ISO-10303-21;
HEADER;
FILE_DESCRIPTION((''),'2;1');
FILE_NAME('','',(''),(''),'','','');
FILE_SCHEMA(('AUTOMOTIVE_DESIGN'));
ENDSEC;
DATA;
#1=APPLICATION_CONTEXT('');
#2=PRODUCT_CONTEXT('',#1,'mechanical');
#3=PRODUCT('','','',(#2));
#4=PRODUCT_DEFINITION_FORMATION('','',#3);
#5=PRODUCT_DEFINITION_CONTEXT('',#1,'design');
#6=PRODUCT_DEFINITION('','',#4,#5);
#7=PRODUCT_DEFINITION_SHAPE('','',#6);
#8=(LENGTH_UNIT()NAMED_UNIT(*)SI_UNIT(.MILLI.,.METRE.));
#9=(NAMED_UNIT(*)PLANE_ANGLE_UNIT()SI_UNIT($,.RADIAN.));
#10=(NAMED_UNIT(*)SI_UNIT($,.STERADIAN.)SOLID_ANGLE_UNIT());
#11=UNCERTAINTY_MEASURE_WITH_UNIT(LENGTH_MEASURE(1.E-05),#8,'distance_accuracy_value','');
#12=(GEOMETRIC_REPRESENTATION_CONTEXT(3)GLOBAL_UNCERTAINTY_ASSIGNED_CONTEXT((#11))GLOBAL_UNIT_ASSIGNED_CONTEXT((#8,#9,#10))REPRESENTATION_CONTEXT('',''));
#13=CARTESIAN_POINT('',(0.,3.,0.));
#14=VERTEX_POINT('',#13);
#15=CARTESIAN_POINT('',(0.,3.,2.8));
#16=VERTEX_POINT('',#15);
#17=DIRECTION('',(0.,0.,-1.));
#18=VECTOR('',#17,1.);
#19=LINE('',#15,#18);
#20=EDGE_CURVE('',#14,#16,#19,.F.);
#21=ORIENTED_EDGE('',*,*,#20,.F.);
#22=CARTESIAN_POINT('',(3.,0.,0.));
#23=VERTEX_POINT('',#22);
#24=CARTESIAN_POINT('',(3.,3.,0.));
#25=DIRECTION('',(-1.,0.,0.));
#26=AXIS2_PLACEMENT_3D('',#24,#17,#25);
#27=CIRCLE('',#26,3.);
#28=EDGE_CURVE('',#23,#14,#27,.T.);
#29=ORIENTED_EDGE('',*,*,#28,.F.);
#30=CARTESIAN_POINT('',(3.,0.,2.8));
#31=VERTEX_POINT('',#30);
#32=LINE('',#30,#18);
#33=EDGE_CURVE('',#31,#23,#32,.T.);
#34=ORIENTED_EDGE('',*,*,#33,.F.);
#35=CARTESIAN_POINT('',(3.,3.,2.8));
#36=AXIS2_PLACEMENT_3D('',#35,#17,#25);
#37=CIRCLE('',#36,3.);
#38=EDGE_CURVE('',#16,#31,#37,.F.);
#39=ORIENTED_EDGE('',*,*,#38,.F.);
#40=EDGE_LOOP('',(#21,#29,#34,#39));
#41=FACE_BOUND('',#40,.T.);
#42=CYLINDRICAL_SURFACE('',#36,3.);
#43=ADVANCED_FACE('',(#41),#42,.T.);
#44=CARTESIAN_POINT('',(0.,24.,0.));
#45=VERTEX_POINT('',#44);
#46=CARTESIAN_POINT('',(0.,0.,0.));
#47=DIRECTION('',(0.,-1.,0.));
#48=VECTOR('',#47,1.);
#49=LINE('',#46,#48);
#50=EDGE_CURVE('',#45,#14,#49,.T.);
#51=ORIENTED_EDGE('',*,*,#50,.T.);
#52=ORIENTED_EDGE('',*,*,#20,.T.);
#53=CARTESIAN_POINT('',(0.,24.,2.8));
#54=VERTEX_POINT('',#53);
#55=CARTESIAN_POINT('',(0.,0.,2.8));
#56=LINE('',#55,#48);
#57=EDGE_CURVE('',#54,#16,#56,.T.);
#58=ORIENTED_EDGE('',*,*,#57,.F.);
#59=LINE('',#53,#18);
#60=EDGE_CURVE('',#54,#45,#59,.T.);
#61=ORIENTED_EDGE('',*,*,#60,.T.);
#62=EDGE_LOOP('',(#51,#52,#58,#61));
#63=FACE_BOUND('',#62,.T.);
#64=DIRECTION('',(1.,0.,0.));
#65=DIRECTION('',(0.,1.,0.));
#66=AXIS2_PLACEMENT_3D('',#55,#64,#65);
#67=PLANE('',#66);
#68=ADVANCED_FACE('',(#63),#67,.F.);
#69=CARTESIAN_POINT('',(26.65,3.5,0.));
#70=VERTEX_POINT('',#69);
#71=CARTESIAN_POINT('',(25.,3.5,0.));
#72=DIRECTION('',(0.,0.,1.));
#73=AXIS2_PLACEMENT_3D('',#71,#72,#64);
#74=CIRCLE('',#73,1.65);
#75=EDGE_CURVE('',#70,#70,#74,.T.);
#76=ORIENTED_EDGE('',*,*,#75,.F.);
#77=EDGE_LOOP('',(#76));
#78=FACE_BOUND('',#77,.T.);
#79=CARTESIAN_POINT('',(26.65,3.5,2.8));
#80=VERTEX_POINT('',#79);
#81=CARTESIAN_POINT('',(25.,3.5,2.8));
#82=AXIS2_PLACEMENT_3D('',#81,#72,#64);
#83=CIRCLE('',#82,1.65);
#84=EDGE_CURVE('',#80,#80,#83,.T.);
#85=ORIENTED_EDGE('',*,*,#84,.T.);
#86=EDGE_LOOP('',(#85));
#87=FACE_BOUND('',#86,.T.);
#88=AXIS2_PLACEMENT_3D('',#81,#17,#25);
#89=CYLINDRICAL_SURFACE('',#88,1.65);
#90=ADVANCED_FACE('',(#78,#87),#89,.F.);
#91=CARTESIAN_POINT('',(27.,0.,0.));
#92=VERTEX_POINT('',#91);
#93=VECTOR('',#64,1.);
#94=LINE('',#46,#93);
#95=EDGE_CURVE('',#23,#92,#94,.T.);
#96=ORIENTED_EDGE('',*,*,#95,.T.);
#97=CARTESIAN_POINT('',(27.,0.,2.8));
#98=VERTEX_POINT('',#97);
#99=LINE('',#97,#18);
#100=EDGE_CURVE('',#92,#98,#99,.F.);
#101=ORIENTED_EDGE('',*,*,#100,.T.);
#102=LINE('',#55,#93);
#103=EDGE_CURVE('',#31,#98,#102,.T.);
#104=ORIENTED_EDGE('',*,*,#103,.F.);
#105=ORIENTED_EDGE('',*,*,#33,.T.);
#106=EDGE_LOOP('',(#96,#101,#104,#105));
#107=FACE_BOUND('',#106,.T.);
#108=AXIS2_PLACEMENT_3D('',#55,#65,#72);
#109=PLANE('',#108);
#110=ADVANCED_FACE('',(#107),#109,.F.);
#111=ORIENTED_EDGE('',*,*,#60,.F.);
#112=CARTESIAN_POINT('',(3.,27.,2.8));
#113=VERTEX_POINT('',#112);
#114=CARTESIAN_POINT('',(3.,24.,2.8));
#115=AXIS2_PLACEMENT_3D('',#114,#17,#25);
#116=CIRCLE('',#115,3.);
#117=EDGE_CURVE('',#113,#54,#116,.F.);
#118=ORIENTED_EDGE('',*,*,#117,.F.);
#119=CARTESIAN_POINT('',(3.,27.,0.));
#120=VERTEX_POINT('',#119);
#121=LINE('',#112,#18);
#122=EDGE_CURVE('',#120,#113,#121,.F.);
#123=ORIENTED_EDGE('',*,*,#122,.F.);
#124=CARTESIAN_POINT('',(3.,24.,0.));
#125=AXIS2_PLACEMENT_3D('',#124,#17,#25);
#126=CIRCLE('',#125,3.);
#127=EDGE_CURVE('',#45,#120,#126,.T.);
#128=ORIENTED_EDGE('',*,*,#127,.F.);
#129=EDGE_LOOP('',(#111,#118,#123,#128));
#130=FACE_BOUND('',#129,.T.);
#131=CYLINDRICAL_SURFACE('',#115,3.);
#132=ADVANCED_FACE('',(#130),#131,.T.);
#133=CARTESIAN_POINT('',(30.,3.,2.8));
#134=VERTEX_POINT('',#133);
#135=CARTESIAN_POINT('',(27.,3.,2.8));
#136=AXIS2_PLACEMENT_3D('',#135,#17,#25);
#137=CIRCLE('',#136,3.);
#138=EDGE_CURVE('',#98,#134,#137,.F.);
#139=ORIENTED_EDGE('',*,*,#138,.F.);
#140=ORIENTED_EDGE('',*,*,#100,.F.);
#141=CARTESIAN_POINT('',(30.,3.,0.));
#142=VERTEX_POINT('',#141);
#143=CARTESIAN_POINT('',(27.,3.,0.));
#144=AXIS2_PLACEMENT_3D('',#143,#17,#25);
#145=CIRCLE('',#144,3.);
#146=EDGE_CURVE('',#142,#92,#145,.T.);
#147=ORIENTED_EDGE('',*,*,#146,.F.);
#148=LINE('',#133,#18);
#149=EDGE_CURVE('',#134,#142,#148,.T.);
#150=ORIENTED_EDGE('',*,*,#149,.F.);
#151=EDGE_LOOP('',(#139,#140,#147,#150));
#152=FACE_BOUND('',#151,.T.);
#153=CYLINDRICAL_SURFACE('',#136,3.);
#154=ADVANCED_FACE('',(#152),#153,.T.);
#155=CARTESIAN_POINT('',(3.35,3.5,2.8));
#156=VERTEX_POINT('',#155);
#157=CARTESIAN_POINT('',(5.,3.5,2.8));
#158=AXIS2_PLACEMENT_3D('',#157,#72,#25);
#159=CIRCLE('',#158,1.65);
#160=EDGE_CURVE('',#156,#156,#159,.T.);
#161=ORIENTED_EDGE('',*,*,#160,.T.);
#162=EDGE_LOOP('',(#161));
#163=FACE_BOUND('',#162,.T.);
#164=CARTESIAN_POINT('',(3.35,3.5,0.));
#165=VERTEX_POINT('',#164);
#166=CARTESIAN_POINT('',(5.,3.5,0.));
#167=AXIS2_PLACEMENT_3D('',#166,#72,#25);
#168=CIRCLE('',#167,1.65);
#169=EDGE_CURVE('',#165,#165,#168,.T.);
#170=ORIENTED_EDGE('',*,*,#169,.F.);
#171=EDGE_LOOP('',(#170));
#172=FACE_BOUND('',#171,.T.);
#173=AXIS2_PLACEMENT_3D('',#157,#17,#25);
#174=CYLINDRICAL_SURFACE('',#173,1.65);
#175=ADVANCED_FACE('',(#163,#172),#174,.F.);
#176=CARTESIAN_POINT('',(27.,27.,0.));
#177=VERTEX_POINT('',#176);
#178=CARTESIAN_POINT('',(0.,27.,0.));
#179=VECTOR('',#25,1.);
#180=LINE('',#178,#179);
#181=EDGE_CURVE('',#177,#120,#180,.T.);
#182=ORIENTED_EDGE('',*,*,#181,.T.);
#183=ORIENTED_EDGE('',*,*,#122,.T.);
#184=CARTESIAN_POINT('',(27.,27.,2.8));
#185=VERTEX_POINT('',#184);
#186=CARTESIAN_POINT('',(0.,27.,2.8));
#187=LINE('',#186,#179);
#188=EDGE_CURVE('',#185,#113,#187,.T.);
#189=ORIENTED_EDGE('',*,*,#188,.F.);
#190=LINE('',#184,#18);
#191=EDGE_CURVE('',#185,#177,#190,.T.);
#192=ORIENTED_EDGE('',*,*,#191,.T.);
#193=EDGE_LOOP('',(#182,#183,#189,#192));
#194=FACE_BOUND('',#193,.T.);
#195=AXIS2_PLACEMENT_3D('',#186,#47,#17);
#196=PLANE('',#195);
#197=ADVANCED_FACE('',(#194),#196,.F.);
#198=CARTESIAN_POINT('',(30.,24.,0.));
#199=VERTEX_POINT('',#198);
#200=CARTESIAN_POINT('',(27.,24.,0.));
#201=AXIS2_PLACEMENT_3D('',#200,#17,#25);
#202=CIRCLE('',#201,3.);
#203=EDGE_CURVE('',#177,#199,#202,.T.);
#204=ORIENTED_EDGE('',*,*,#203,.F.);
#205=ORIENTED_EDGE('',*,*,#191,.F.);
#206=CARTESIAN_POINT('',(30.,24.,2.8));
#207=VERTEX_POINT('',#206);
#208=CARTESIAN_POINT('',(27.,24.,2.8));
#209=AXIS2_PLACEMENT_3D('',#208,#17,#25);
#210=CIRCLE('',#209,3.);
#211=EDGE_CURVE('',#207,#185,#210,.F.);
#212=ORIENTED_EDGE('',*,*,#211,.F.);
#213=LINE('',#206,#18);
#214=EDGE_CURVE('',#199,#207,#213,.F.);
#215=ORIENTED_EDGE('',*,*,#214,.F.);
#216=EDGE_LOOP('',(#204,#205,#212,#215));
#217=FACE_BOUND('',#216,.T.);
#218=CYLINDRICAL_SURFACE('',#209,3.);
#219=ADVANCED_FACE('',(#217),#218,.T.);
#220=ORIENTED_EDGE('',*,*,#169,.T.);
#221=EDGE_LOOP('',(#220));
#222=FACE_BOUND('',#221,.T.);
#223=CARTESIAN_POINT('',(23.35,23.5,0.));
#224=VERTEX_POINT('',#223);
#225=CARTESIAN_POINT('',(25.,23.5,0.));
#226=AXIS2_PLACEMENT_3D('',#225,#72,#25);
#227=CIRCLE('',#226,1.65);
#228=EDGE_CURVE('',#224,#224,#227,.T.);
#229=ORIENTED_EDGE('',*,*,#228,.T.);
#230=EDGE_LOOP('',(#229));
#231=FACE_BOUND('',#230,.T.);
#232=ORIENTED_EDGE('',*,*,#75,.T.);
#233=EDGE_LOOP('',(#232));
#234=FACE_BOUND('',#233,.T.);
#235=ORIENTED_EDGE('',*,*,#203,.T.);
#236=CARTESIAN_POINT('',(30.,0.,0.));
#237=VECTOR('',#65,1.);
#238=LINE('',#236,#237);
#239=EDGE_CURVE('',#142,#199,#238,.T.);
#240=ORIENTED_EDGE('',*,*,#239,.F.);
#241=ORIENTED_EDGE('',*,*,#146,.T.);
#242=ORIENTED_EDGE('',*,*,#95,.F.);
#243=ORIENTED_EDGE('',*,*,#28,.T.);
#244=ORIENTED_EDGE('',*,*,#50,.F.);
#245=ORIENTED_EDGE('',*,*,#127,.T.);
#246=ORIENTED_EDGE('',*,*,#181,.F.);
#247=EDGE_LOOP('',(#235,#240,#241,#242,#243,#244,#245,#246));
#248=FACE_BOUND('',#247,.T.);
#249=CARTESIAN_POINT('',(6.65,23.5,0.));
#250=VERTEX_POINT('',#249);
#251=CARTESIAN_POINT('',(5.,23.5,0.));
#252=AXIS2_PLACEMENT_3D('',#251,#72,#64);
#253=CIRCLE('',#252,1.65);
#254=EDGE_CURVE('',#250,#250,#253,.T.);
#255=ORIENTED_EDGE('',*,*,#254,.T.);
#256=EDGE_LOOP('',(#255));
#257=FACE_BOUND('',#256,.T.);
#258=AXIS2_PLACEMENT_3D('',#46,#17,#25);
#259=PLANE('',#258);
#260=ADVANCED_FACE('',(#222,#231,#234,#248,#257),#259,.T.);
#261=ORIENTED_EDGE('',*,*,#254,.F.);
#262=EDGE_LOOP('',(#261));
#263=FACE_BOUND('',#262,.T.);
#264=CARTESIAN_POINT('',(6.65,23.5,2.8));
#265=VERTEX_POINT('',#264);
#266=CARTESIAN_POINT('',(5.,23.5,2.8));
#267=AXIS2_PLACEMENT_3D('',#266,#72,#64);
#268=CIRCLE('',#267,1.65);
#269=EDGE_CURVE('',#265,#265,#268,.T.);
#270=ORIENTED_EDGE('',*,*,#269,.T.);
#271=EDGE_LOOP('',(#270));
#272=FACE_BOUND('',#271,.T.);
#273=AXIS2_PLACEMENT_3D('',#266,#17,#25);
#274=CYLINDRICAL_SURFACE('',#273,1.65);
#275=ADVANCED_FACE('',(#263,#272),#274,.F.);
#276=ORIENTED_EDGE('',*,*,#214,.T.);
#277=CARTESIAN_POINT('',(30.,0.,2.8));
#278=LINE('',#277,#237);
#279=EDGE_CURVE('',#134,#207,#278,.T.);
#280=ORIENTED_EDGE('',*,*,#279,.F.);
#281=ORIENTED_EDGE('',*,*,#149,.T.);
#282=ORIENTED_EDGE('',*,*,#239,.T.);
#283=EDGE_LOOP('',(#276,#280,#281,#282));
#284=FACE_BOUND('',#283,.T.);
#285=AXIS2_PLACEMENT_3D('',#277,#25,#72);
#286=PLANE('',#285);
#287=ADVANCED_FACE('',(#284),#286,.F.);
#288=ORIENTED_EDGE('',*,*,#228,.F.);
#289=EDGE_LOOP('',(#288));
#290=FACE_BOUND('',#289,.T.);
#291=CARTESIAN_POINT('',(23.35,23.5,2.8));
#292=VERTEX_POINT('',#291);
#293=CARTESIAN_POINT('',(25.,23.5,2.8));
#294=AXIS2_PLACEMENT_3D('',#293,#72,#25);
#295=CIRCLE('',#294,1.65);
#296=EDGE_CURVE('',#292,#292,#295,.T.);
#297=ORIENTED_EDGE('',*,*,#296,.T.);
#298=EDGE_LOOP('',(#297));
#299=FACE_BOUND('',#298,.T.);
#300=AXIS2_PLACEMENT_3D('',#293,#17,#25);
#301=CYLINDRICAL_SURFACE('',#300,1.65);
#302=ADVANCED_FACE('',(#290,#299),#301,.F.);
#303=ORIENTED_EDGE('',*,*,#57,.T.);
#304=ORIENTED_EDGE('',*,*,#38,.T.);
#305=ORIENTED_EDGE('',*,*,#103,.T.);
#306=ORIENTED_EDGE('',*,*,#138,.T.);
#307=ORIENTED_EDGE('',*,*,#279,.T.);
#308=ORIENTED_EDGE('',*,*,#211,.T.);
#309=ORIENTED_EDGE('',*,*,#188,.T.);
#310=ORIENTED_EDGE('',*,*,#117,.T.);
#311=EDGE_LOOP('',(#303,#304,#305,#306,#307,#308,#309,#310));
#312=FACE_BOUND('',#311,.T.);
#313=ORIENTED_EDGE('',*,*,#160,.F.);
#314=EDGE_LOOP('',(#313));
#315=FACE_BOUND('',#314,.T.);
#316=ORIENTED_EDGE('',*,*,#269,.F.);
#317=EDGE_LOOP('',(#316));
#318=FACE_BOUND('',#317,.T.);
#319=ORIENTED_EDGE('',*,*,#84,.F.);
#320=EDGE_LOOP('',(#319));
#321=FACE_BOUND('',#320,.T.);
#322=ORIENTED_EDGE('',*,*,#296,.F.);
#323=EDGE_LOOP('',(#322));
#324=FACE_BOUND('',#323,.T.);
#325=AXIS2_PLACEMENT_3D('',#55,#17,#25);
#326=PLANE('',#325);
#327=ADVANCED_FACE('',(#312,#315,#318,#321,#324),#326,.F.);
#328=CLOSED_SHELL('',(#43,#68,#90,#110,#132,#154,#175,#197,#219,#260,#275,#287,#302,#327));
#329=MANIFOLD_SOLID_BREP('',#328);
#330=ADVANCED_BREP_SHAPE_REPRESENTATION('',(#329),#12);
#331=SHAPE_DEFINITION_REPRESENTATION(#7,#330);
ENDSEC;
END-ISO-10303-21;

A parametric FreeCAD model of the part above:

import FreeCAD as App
import Part
import Sketcher
from FreeCAD import Vector


def edges_at(feature, points):
    """Names of the edges that pass closest to the given points."""
    edges = feature.Shape.Edges
    near = lambda p: min(range(len(edges)), key=lambda i: edges[i].distToShape(Part.Vertex(*p))[0])
    return sorted({f"Edge{near(p) + 1}" for p in points})


def add_polygon(sketch, points):
    """Adds a closed chain of lines whose ends are joined by coincident constraints."""
    first, n = sketch.GeometryCount, len(points)
    for a, b in zip(points, points[1:] + points[:1]):
        sketch.addGeometry(Part.LineSegment(App.Vector(*a, 0), App.Vector(*b, 0)), False)
    for i in range(n):
        sketch.addConstraint(Sketcher.Constraint("Coincident", first + i, 2, first + (i + 1) % n, 1))

doc = App.newDocument("Part")
body = doc.addObject("PartDesign::Body", "Body")

# Sketch on XY plane
sketch1 = body.newObject("Sketcher::SketchObject", "Sketch")
sketch1.AttachmentSupport = (doc.getObject("XY_Plane"), [""])
sketch1.MapMode = "FlatFace"
add_polygon(sketch1, [(0, 27), (0, 0), (30, 0), (30, 27)])  # lines 0-3
sketch1.addGeometry(Part.Circle(Vector(5, 3.5, 0), Vector(0, 0, 1), 1.6), False)  # 4
sketch1.addGeometry(Part.Circle(Vector(25, 3.5, 0), Vector(0, 0, 1), 1.6), False)  # 5
sketch1.addGeometry(Part.Circle(Vector(5, 23.5, 0), Vector(0, 0, 1), 1.6), False)  # 6
sketch1.addGeometry(Part.Circle(Vector(25, 23.5, 0), Vector(0, 0, 1), 1.6), False)  # 7
sketch1.addConstraint([
    Sketcher.Constraint("Vertical", 0),
    Sketcher.Constraint("Horizontal", 1),
    Sketcher.Constraint("Vertical", 2),
    Sketcher.Constraint("Horizontal", 3),
    Sketcher.Constraint("Coincident", 0, 2, -1, 1),
    Sketcher.Constraint("Equal", 4, 5),
    Sketcher.Constraint("Equal", 5, 6),
    Sketcher.Constraint("Equal", 6, 7),
    Sketcher.Constraint("Horizontal", 4, 3, 5, 3),
    Sketcher.Constraint("Horizontal", 6, 3, 7, 3),
    Sketcher.Constraint("Vertical", 4, 3, 6, 3),
    Sketcher.Constraint("Vertical", 5, 3, 7, 3),
    Sketcher.Constraint("Diameter", 4, 3.3),
    Sketcher.Constraint("DistanceX", 1, 1, 1, 2, 30.0),
    Sketcher.Constraint("DistanceY", 0, 2, 0, 1, 27.0),
    Sketcher.Constraint("DistanceX", -1, 1, 4, 3, 5.0),
    Sketcher.Constraint("DistanceX", -1, 1, 5, 3, 25.0),
    Sketcher.Constraint("DistanceY", 4, 3, 6, 3, 20.0),
    Sketcher.Constraint("DistanceY", -1, 1, 4, 3, 3.5),
])
pad1 = body.newObject("PartDesign::Pad", "Pad")
pad1.Profile = sketch1
pad1.Length = 2.8
doc.recompute()

fillet = body.newObject("PartDesign::Fillet", "Fillet")
fillet.Base = (pad1, edges_at(pad1, [
    (0, 27, 1.4),
    (30, 27, 1.4),
    (30, 0, 1.4),
    (0, 0, 1.4),
]))
fillet.Radius = 3

doc.recompute()
